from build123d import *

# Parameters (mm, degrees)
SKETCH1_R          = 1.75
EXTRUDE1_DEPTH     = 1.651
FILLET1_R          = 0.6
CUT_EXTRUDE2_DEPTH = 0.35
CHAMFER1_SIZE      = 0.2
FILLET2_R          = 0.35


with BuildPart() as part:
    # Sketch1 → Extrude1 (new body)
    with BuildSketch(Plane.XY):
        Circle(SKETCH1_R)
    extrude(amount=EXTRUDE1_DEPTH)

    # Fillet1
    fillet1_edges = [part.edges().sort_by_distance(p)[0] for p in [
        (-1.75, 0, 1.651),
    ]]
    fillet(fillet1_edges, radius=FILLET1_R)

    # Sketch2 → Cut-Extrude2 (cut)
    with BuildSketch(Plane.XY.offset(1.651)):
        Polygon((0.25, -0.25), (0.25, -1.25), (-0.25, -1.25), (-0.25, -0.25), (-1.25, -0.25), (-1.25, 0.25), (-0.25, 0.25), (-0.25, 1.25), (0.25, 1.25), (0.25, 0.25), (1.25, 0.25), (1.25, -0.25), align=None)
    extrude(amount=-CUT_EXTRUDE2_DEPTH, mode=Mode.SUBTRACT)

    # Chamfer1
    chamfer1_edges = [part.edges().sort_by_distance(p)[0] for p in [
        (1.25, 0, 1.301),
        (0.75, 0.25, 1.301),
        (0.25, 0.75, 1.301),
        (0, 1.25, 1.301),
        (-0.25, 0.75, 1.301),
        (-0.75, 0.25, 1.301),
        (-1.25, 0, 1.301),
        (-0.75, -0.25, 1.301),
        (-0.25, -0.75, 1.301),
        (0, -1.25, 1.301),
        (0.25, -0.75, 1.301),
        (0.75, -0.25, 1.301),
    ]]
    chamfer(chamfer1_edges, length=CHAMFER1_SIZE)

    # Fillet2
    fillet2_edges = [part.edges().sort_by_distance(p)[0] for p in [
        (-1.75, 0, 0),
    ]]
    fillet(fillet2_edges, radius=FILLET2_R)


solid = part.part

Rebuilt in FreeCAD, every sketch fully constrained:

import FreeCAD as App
import Part
import Sketcher

V = App.Vector


def edges_at(feature, points):
    """Names of the edges that pass closest to the given points."""
    edges = feature.Shape.Edges
    near = lambda p: min(range(len(edges)), key=lambda i: edges[i].distToShape(Part.Vertex(*p))[0])
    return sorted({f"Edge{near(p) + 1}" for p in points})


def add_polygon(sketch, points):
    """Adds a closed chain of lines whose ends are joined by coincident constraints."""
    first, n = sketch.GeometryCount, len(points)
    for a, b in zip(points, points[1:] + points[:1]):
        sketch.addGeometry(Part.LineSegment(App.Vector(*a, 0), App.Vector(*b, 0)), False)
    for i in range(n):
        sketch.addConstraint(Sketcher.Constraint("Coincident", first + i, 2, first + (i + 1) % n, 1))

doc = App.newDocument("Part")
body = doc.addObject("PartDesign::Body", "Body")

# Sketch on XY plane
sketch1 = doc.addObject("Sketcher::SketchObject", "Sketch")
body.addObject(sketch1)
sketch1.AttachmentSupport = (doc.XY_Plane, [""])
sketch1.MapMode = "FlatFace"
sketch1.addGeometry(Part.Circle(V(0, 0, 0), V(0, 0, 1), 1.8), False)
sketch1.addConstraint(Sketcher.Constraint("Coincident", 0, 3, -1, 1))
sketch1.addConstraint(Sketcher.Constraint("Diameter", 0, 3.5))
pad1 = doc.addObject("PartDesign::Pad", "Pad")
body.addObject(pad1)
pad1.Profile = sketch1
pad1.Length = 1.651
doc.recompute()

fillet = doc.addObject("PartDesign::Fillet", "Fillet")
body.addObject(fillet)
fillet.Base = (pad1, edges_at(pad1, [(-1.75, 0, 1.651)]))
fillet.Radius = 0.6

# Sketch on XY plane
sketch2 = doc.addObject("Sketcher::SketchObject", "Sketch001")
body.addObject(sketch2)
sketch2.AttachmentSupport = (doc.XY_Plane, [""])
sketch2.MapMode = "FlatFace"
sketch2.AttachmentOffset = App.Placement(V(0, 0, 1.651), App.Rotation())
add_polygon(sketch2, [(0.2, -1.2), (0.2, -0.2), (1.2, -0.2), (1.2, 0.2), (0.2, 0.2), (0.2, 1.2), (-0.2, 1.2), (-0.2, 0.2), (-1.2, 0.2), (-1.2, -0.2), (-0.2, -0.2), (-0.2, -1.2)])  # lines 0-11
sketch2.addConstraint(Sketcher.Constraint("Vertical", 0))
sketch2.addConstraint(Sketcher.Constraint("Horizontal", 1))
sketch2.addConstraint(Sketcher.Constraint("Vertical", 2))
sketch2.addConstraint(Sketcher.Constraint("Horizontal", 3))
sketch2.addConstraint(Sketcher.Constraint("Vertical", 4))
sketch2.addConstraint(Sketcher.Constraint("Horizontal", 5))
sketch2.addConstraint(Sketcher.Constraint("Vertical", 6))
sketch2.addConstraint(Sketcher.Constraint("Horizontal", 7))
sketch2.addConstraint(Sketcher.Constraint("Vertical", 8))
sketch2.addConstraint(Sketcher.Constraint("Horizontal", 9))
sketch2.addConstraint(Sketcher.Constraint("Vertical", 10))
sketch2.addConstraint(Sketcher.Constraint("Horizontal", 11))
sketch2.addConstraint(Sketcher.Constraint("Symmetric", 0, 2, 6, 2, -1, 1))
sketch2.addConstraint(Sketcher.Constraint("Symmetric", 2, 2, 8, 2, -1, 1))
sketch2.addConstraint(Sketcher.Constraint("Symmetric", 4, 2, 10, 2, -1, 1))
sketch2.addConstraint(Sketcher.Constraint("Symmetric", 3, 2, 6, 2, -2))
sketch2.addConstraint(Sketcher.Constraint("Equal", 9, 0))
sketch2.addConstraint(Sketcher.Constraint("Equal", 11, 2))
sketch2.addConstraint(Sketcher.Constraint("DistanceX", 1, 1, 1, 2, 1.0))
sketch2.addConstraint(Sketcher.Constraint("DistanceX", 5, 2, 5, 1, 0.5))
pocket1 = doc.addObject("PartDesign::Pocket", "Pocket")
body.addObject(pocket1)
pocket1.Profile = sketch2
pocket1.Length = 0.35
doc.recompute()

chamfer = doc.addObject("PartDesign::Chamfer", "Chamfer")
body.addObject(chamfer)
chamfer.Base = (pocket1, edges_at(pocket1, [
    (1.25, 0, 1.301),
    (0.75, 0.25, 1.301),
    (0.25, 0.75, 1.301),
    (0, 1.25, 1.301),
    (-0.25, 0.75, 1.301),
    (-0.75, 0.25, 1.301),
    (-1.25, 0, 1.301),
    (-0.75, -0.25, 1.301),
    (-0.25, -0.75, 1.301),
    (0, -1.25, 1.301),
    (0.25, -0.75, 1.301),
    (0.75, -0.25, 1.301),
]))
chamfer.Size = 0.2
doc.recompute()

fillet2 = doc.addObject("PartDesign::Fillet", "Fillet001")
body.addObject(fillet2)
fillet2.Base = (chamfer, edges_at(chamfer, [(-1.75, 0, 0)]))
fillet2.Radius = 0.35

doc.recompute()
